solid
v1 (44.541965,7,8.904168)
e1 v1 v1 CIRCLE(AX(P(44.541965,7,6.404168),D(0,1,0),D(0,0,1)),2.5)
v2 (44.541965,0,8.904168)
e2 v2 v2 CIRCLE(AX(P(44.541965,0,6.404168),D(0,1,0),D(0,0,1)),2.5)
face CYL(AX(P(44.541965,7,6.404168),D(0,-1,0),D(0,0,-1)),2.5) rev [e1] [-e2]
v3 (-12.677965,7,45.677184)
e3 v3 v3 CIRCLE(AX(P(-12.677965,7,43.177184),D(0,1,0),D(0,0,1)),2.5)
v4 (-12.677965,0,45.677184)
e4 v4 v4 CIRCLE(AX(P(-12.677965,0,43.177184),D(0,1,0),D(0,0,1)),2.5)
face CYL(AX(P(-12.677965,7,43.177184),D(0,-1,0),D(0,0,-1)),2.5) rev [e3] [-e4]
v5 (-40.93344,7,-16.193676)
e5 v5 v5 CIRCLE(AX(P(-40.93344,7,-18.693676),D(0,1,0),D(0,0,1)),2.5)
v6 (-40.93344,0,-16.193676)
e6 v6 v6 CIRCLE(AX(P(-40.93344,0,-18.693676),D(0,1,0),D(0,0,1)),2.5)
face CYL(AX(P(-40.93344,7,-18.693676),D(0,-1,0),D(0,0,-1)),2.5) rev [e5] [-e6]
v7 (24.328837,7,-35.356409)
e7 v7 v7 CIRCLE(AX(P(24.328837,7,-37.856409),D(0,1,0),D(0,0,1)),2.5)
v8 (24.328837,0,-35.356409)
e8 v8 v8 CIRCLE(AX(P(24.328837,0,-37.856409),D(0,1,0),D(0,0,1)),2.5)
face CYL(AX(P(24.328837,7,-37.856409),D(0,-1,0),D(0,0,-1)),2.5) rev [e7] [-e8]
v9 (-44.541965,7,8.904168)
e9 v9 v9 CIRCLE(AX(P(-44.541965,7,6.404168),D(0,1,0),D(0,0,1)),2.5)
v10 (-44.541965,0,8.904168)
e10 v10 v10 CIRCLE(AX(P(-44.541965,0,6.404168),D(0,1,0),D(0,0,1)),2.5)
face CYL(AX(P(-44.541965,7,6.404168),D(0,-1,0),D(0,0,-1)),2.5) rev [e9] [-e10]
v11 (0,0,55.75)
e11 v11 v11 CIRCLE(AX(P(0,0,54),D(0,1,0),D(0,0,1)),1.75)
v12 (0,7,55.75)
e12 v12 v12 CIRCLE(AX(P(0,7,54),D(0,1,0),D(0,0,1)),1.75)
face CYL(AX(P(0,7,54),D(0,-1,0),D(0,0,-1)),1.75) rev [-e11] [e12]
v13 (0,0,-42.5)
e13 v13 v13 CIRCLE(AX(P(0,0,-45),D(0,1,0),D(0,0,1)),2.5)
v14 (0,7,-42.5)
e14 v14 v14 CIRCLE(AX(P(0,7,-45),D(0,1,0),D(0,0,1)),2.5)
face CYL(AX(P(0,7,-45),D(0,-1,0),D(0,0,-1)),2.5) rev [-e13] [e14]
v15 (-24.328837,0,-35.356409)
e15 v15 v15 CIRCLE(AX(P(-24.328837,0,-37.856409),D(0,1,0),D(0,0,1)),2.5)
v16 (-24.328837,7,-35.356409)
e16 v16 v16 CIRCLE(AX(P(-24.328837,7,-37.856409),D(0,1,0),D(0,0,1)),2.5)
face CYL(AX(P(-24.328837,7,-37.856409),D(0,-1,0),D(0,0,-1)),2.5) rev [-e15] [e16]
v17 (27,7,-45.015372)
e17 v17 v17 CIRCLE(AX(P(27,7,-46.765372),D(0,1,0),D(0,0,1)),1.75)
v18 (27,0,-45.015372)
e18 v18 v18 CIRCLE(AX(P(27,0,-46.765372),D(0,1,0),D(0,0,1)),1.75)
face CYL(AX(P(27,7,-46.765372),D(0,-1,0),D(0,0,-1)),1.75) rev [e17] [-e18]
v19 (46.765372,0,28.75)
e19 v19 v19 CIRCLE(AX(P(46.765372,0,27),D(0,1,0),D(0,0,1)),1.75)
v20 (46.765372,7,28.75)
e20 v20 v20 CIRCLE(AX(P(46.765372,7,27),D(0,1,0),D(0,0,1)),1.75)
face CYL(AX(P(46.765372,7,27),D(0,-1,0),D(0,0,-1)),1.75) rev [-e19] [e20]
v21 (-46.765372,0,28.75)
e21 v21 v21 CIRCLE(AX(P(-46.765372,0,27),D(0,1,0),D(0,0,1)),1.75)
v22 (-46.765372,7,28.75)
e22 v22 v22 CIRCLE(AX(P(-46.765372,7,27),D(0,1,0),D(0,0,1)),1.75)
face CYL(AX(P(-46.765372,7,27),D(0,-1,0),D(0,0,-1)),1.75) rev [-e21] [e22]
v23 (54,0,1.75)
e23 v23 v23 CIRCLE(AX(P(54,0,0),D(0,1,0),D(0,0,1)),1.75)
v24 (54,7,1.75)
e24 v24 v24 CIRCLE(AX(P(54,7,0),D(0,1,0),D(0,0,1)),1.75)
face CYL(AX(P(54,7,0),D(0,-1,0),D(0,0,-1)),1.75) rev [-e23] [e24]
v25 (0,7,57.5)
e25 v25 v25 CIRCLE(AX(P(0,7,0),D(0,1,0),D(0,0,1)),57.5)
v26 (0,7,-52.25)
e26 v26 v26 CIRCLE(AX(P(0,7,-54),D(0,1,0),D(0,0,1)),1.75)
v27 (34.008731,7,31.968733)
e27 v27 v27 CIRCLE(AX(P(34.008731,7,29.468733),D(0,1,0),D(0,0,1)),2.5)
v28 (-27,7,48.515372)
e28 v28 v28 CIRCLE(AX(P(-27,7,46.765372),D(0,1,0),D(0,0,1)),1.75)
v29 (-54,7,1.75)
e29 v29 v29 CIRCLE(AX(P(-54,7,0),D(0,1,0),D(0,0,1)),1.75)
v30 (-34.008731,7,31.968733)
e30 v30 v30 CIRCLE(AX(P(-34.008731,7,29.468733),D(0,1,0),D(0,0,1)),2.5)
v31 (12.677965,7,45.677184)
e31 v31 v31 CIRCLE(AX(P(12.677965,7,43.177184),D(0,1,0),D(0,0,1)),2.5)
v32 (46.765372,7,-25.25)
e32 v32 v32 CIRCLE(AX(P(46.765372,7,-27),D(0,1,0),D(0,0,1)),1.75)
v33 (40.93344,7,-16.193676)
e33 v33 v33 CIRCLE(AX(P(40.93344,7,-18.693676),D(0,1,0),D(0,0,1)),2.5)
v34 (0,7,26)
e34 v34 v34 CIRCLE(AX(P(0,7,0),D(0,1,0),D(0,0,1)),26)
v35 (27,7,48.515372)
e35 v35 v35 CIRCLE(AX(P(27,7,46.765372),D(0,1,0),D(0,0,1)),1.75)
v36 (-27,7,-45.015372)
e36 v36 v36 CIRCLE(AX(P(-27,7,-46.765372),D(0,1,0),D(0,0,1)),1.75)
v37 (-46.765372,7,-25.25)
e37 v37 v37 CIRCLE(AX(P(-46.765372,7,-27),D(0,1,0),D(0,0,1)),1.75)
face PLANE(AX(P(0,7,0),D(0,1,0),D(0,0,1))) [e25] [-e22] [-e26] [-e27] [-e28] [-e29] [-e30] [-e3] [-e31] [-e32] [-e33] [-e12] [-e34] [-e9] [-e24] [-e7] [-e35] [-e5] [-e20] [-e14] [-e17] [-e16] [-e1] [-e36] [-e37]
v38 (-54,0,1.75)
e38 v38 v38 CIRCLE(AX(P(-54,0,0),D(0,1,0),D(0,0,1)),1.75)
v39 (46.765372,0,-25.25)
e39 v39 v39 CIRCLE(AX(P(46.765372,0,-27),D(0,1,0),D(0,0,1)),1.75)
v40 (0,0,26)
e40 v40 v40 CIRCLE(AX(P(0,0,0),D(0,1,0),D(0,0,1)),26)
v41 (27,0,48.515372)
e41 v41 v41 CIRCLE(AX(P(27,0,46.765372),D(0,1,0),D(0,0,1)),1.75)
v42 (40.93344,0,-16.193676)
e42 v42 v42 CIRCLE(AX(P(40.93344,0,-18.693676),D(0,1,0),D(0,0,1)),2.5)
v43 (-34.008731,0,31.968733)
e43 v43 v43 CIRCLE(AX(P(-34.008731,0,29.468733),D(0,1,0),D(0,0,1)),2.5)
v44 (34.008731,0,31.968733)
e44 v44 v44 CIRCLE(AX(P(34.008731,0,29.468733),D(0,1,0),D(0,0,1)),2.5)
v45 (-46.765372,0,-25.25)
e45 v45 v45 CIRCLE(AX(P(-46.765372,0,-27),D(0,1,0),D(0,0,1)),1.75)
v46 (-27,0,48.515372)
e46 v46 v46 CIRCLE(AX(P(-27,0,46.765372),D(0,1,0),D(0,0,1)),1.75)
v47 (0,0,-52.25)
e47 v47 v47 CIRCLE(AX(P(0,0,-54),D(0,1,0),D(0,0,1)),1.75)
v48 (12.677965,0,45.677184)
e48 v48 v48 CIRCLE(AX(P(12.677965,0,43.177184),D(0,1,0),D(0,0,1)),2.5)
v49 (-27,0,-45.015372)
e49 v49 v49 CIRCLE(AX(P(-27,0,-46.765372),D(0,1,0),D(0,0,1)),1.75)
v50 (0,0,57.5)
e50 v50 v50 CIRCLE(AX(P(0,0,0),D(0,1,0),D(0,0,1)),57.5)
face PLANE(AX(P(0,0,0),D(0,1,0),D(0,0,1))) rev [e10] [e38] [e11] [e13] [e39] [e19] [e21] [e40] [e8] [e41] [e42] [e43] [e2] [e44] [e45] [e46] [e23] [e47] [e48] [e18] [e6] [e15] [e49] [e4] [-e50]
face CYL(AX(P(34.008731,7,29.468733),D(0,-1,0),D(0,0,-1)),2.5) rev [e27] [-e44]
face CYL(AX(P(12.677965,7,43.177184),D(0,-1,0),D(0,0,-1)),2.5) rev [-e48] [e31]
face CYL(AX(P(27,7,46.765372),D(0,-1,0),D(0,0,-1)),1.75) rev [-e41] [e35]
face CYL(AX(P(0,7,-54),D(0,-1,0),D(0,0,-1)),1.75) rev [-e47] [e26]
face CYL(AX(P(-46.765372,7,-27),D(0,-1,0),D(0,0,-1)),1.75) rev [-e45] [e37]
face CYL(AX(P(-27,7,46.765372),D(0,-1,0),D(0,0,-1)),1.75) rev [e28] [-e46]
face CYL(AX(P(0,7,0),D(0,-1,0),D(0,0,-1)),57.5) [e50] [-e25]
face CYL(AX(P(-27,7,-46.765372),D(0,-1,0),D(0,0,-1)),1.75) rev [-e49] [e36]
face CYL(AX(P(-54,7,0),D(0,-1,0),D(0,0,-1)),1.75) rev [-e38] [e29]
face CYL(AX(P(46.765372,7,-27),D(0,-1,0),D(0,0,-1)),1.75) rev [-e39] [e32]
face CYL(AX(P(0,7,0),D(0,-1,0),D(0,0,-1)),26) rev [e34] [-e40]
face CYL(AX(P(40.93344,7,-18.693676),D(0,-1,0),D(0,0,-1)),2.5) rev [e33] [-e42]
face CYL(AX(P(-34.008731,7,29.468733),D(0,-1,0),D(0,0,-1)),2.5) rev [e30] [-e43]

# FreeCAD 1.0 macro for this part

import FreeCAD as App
import Part
import Sketcher
from FreeCAD import Vector
Q = App.Units.Quantity

doc = App.newDocument("Part")
body = doc.addObject("PartDesign::Body", "Body")

# Sketch on XZ plane
sketch1 = body.newObject("Sketcher::SketchObject", "Sketch")
sketch1.AttachmentSupport = (doc.getObject("XZ_Plane"), [""])
sketch1.MapMode = "FlatFace"
sketch1.addGeometry([
    Part.Circle(Vector(0, 0, 0), Vector(0, 0, 1), 57.5),  # 0
    Part.Circle(Vector(-46.8, -27, 0), Vector(0, 0, 1), 1.8),  # 1
    Part.Circle(Vector(-40.9, -18.7, 0), Vector(0, 0, 1), 2.5),  # 2
    Part.Circle(Vector(-27, -46.8, 0), Vector(0, 0, 1), 1.8),  # 3
    Part.Circle(Vector(-24.3, -37.9, 0), Vector(0, 0, 1), 2.5),  # 4
    Part.Circle(Vector(0, -54, 0), Vector(0, 0, 1), 1.8),  # 5
    Part.Circle(Vector(0, -45, 0), Vector(0, 0, 1), 2.5),  # 6
    Part.Circle(Vector(-54, 0, 0), Vector(0, 0, 1), 1.8),  # 7
    Part.Circle(Vector(-44.5, 6.4, 0), Vector(0, 0, 1), 2.5),  # 8
    Part.Circle(Vector(-46.8, 27, 0), Vector(0, 0, 1), 1.8),  # 9
    Part.Circle(Vector(-34, 29.5, 0), Vector(0, 0, 1), 2.5),  # 10
    Part.Circle(Vector(-27, 46.8, 0), Vector(0, 0, 1), 1.8),  # 11
    Part.Circle(Vector(-12.7, 43.2, 0), Vector(0, 0, 1), 2.5),  # 12
    Part.Circle(Vector(27, -46.8, 0), Vector(0, 0, 1), 1.8),  # 13
    Part.Circle(Vector(24.3, -37.9, 0), Vector(0, 0, 1), 2.5),  # 14
    Part.Circle(Vector(40.9, -18.7, 0), Vector(0, 0, 1), 2.5),  # 15
    Part.Circle(Vector(46.8, -27, 0), Vector(0, 0, 1), 1.8),  # 16
    Part.Circle(Vector(54, 0, 0), Vector(0, 0, 1), 1.8),  # 17
    Part.Circle(Vector(0, 0, 0), Vector(0, 0, 1), 26),  # 18
    Part.Circle(Vector(0, 54, 0), Vector(0, 0, 1), 1.8),  # 19
    Part.Circle(Vector(12.7, 43.2, 0), Vector(0, 0, 1), 2.5),  # 20
    Part.Circle(Vector(27, 46.8, 0), Vector(0, 0, 1), 1.8),  # 21
    Part.Circle(Vector(44.5, 6.4, 0), Vector(0, 0, 1), 2.5),  # 22
    Part.Circle(Vector(46.8, 27, 0), Vector(0, 0, 1), 1.8),  # 23
    Part.Circle(Vector(34, 29.5, 0), Vector(0, 0, 1), 2.5),  # 24
], False)
sketch1.addConstraint([
    Sketcher.Constraint("Coincident", 0, 3, -1, 1),
    Sketcher.Constraint("Coincident", 18, 3, -1, 1),
    Sketcher.Constraint("Equal", 1, 3),
    Sketcher.Constraint("Equal", 2, 4),
    Sketcher.Constraint("Equal", 3, 5),
    Sketcher.Constraint("Equal", 4, 6),
    Sketcher.Constraint("Equal", 5, 7),
    Sketcher.Constraint("Equal", 6, 8),
    Sketcher.Constraint("Equal", 7, 9),
    Sketcher.Constraint("Equal", 8, 10),
    Sketcher.Constraint("Equal", 9, 11),
    Sketcher.Constraint("Equal", 10, 12),
    Sketcher.Constraint("Equal", 11, 13),
    Sketcher.Constraint("Equal", 12, 14),
    Sketcher.Constraint("Equal", 14, 15),
    Sketcher.Constraint("Equal", 13, 16),
    Sketcher.Constraint("Equal", 16, 17),
    Sketcher.Constraint("Equal", 17, 19),
    Sketcher.Constraint("Equal", 15, 20),
    Sketcher.Constraint("Equal", 19, 21),
    Sketcher.Constraint("Equal", 20, 22),
    Sketcher.Constraint("Equal", 21, 23),
    Sketcher.Constraint("Equal", 22, 24),
    Sketcher.Constraint("Symmetric", 11, 3, 13, 3, -1, 1),
    Sketcher.Constraint("Symmetric", 9, 3, 16, 3, -1, 1),
    Sketcher.Constraint("Symmetric", 7, 3, 17, 3, -1, 1),
    Sketcher.Constraint("Symmetric", 5, 3, 19, 3, -1, 1),
    Sketcher.Constraint("Symmetric", 3, 3, 21, 3, -1, 1),
    Sketcher.Constraint("Symmetric", 1, 3, 23, 3, -1, 1),
    Sketcher.Constraint("Symmetric", 3, 3, 13, 3, -2),
    Sketcher.Constraint("Symmetric", 4, 3, 14, 3, -2),
    Sketcher.Constraint("Symmetric", 2, 3, 15, 3, -2),
    Sketcher.Constraint("Symmetric", 1, 3, 16, 3, -2),
    Sketcher.Constraint("Symmetric", 12, 3, 20, 3, -2),
    Sketcher.Constraint("Symmetric", 8, 3, 22, 3, -2),
    Sketcher.Constraint("Symmetric", 10, 3, 24, 3, -2),
    Sketcher.Constraint("PointOnObject", 5, 3, -2),
    Sketcher.Constraint("PointOnObject", 6, 3, -2),
    Sketcher.Constraint("PointOnObject", 7, 3, -1),
    Sketcher.Constraint("Diameter", 0, Q("115 mm")),
    Sketcher.Constraint("Diameter", 2, Q("5 mm")),
    Sketcher.Constraint("Diameter", 18, Q("52 mm")),
    Sketcher.Constraint("Diameter", 1, Q("3.5 mm")),
    Sketcher.Constraint("DistanceY", 1, 3, -1, 1, Q("27 mm")),
    Sketcher.Constraint("DistanceX", 3, 3, -1, 1, Q("27 mm")),
    Sketcher.Constraint("DistanceY", 5, 3, -1, 1, Q("54 mm")),
    Sketcher.Constraint("DistanceY", 6, 3, -1, 1, Q("45 mm")),
    Sketcher.Constraint("DistanceX", 7, 3, -1, 1, Q("54 mm")),
    Sketcher.Constraint("DistanceX", 8, 3, 12, 3, Q("31.864 mm")),
    Sketcher.Constraint("DistanceX", 1, 3, -1, 1, Q("46.765372 mm")),
    Sketcher.Constraint("DistanceX", 2, 3, -1, 1, Q("40.93344 mm")),
    Sketcher.Constraint("DistanceY", 3, 3, -1, 1, Q("46.765372 mm")),
    Sketcher.Constraint("DistanceY", 4, 3, -1, 1, Q("37.856409 mm")),
    Sketcher.Constraint("DistanceX", 10, 3, -1, 1, Q("34.008731 mm")),
    Sketcher.Constraint("DistanceX", 8, 3, 4, 3, Q("20.213128 mm")),
    Sketcher.Constraint("DistanceY", 2, 3, 10, 3, Q("48.162409 mm")),
    Sketcher.Constraint("DistanceY", 10, 3, 11, 3, Q("17.296639 mm")),
    Sketcher.Constraint("DistanceY", 10, 3, 12, 3, Q("13.708451 mm")),
    Sketcher.Constraint("DistanceX", 12, 3, 20, 3, Q("25.35593 mm")),
    Sketcher.Constraint("DistanceY", -1, 1, 8, 3, Q("6.404168 mm")),
])
pad1 = body.newObject("PartDesign::Pad", "Pad")
pad1.Profile = sketch1
pad1.Length = 7
pad1.Reversed = True

doc.recompute()
